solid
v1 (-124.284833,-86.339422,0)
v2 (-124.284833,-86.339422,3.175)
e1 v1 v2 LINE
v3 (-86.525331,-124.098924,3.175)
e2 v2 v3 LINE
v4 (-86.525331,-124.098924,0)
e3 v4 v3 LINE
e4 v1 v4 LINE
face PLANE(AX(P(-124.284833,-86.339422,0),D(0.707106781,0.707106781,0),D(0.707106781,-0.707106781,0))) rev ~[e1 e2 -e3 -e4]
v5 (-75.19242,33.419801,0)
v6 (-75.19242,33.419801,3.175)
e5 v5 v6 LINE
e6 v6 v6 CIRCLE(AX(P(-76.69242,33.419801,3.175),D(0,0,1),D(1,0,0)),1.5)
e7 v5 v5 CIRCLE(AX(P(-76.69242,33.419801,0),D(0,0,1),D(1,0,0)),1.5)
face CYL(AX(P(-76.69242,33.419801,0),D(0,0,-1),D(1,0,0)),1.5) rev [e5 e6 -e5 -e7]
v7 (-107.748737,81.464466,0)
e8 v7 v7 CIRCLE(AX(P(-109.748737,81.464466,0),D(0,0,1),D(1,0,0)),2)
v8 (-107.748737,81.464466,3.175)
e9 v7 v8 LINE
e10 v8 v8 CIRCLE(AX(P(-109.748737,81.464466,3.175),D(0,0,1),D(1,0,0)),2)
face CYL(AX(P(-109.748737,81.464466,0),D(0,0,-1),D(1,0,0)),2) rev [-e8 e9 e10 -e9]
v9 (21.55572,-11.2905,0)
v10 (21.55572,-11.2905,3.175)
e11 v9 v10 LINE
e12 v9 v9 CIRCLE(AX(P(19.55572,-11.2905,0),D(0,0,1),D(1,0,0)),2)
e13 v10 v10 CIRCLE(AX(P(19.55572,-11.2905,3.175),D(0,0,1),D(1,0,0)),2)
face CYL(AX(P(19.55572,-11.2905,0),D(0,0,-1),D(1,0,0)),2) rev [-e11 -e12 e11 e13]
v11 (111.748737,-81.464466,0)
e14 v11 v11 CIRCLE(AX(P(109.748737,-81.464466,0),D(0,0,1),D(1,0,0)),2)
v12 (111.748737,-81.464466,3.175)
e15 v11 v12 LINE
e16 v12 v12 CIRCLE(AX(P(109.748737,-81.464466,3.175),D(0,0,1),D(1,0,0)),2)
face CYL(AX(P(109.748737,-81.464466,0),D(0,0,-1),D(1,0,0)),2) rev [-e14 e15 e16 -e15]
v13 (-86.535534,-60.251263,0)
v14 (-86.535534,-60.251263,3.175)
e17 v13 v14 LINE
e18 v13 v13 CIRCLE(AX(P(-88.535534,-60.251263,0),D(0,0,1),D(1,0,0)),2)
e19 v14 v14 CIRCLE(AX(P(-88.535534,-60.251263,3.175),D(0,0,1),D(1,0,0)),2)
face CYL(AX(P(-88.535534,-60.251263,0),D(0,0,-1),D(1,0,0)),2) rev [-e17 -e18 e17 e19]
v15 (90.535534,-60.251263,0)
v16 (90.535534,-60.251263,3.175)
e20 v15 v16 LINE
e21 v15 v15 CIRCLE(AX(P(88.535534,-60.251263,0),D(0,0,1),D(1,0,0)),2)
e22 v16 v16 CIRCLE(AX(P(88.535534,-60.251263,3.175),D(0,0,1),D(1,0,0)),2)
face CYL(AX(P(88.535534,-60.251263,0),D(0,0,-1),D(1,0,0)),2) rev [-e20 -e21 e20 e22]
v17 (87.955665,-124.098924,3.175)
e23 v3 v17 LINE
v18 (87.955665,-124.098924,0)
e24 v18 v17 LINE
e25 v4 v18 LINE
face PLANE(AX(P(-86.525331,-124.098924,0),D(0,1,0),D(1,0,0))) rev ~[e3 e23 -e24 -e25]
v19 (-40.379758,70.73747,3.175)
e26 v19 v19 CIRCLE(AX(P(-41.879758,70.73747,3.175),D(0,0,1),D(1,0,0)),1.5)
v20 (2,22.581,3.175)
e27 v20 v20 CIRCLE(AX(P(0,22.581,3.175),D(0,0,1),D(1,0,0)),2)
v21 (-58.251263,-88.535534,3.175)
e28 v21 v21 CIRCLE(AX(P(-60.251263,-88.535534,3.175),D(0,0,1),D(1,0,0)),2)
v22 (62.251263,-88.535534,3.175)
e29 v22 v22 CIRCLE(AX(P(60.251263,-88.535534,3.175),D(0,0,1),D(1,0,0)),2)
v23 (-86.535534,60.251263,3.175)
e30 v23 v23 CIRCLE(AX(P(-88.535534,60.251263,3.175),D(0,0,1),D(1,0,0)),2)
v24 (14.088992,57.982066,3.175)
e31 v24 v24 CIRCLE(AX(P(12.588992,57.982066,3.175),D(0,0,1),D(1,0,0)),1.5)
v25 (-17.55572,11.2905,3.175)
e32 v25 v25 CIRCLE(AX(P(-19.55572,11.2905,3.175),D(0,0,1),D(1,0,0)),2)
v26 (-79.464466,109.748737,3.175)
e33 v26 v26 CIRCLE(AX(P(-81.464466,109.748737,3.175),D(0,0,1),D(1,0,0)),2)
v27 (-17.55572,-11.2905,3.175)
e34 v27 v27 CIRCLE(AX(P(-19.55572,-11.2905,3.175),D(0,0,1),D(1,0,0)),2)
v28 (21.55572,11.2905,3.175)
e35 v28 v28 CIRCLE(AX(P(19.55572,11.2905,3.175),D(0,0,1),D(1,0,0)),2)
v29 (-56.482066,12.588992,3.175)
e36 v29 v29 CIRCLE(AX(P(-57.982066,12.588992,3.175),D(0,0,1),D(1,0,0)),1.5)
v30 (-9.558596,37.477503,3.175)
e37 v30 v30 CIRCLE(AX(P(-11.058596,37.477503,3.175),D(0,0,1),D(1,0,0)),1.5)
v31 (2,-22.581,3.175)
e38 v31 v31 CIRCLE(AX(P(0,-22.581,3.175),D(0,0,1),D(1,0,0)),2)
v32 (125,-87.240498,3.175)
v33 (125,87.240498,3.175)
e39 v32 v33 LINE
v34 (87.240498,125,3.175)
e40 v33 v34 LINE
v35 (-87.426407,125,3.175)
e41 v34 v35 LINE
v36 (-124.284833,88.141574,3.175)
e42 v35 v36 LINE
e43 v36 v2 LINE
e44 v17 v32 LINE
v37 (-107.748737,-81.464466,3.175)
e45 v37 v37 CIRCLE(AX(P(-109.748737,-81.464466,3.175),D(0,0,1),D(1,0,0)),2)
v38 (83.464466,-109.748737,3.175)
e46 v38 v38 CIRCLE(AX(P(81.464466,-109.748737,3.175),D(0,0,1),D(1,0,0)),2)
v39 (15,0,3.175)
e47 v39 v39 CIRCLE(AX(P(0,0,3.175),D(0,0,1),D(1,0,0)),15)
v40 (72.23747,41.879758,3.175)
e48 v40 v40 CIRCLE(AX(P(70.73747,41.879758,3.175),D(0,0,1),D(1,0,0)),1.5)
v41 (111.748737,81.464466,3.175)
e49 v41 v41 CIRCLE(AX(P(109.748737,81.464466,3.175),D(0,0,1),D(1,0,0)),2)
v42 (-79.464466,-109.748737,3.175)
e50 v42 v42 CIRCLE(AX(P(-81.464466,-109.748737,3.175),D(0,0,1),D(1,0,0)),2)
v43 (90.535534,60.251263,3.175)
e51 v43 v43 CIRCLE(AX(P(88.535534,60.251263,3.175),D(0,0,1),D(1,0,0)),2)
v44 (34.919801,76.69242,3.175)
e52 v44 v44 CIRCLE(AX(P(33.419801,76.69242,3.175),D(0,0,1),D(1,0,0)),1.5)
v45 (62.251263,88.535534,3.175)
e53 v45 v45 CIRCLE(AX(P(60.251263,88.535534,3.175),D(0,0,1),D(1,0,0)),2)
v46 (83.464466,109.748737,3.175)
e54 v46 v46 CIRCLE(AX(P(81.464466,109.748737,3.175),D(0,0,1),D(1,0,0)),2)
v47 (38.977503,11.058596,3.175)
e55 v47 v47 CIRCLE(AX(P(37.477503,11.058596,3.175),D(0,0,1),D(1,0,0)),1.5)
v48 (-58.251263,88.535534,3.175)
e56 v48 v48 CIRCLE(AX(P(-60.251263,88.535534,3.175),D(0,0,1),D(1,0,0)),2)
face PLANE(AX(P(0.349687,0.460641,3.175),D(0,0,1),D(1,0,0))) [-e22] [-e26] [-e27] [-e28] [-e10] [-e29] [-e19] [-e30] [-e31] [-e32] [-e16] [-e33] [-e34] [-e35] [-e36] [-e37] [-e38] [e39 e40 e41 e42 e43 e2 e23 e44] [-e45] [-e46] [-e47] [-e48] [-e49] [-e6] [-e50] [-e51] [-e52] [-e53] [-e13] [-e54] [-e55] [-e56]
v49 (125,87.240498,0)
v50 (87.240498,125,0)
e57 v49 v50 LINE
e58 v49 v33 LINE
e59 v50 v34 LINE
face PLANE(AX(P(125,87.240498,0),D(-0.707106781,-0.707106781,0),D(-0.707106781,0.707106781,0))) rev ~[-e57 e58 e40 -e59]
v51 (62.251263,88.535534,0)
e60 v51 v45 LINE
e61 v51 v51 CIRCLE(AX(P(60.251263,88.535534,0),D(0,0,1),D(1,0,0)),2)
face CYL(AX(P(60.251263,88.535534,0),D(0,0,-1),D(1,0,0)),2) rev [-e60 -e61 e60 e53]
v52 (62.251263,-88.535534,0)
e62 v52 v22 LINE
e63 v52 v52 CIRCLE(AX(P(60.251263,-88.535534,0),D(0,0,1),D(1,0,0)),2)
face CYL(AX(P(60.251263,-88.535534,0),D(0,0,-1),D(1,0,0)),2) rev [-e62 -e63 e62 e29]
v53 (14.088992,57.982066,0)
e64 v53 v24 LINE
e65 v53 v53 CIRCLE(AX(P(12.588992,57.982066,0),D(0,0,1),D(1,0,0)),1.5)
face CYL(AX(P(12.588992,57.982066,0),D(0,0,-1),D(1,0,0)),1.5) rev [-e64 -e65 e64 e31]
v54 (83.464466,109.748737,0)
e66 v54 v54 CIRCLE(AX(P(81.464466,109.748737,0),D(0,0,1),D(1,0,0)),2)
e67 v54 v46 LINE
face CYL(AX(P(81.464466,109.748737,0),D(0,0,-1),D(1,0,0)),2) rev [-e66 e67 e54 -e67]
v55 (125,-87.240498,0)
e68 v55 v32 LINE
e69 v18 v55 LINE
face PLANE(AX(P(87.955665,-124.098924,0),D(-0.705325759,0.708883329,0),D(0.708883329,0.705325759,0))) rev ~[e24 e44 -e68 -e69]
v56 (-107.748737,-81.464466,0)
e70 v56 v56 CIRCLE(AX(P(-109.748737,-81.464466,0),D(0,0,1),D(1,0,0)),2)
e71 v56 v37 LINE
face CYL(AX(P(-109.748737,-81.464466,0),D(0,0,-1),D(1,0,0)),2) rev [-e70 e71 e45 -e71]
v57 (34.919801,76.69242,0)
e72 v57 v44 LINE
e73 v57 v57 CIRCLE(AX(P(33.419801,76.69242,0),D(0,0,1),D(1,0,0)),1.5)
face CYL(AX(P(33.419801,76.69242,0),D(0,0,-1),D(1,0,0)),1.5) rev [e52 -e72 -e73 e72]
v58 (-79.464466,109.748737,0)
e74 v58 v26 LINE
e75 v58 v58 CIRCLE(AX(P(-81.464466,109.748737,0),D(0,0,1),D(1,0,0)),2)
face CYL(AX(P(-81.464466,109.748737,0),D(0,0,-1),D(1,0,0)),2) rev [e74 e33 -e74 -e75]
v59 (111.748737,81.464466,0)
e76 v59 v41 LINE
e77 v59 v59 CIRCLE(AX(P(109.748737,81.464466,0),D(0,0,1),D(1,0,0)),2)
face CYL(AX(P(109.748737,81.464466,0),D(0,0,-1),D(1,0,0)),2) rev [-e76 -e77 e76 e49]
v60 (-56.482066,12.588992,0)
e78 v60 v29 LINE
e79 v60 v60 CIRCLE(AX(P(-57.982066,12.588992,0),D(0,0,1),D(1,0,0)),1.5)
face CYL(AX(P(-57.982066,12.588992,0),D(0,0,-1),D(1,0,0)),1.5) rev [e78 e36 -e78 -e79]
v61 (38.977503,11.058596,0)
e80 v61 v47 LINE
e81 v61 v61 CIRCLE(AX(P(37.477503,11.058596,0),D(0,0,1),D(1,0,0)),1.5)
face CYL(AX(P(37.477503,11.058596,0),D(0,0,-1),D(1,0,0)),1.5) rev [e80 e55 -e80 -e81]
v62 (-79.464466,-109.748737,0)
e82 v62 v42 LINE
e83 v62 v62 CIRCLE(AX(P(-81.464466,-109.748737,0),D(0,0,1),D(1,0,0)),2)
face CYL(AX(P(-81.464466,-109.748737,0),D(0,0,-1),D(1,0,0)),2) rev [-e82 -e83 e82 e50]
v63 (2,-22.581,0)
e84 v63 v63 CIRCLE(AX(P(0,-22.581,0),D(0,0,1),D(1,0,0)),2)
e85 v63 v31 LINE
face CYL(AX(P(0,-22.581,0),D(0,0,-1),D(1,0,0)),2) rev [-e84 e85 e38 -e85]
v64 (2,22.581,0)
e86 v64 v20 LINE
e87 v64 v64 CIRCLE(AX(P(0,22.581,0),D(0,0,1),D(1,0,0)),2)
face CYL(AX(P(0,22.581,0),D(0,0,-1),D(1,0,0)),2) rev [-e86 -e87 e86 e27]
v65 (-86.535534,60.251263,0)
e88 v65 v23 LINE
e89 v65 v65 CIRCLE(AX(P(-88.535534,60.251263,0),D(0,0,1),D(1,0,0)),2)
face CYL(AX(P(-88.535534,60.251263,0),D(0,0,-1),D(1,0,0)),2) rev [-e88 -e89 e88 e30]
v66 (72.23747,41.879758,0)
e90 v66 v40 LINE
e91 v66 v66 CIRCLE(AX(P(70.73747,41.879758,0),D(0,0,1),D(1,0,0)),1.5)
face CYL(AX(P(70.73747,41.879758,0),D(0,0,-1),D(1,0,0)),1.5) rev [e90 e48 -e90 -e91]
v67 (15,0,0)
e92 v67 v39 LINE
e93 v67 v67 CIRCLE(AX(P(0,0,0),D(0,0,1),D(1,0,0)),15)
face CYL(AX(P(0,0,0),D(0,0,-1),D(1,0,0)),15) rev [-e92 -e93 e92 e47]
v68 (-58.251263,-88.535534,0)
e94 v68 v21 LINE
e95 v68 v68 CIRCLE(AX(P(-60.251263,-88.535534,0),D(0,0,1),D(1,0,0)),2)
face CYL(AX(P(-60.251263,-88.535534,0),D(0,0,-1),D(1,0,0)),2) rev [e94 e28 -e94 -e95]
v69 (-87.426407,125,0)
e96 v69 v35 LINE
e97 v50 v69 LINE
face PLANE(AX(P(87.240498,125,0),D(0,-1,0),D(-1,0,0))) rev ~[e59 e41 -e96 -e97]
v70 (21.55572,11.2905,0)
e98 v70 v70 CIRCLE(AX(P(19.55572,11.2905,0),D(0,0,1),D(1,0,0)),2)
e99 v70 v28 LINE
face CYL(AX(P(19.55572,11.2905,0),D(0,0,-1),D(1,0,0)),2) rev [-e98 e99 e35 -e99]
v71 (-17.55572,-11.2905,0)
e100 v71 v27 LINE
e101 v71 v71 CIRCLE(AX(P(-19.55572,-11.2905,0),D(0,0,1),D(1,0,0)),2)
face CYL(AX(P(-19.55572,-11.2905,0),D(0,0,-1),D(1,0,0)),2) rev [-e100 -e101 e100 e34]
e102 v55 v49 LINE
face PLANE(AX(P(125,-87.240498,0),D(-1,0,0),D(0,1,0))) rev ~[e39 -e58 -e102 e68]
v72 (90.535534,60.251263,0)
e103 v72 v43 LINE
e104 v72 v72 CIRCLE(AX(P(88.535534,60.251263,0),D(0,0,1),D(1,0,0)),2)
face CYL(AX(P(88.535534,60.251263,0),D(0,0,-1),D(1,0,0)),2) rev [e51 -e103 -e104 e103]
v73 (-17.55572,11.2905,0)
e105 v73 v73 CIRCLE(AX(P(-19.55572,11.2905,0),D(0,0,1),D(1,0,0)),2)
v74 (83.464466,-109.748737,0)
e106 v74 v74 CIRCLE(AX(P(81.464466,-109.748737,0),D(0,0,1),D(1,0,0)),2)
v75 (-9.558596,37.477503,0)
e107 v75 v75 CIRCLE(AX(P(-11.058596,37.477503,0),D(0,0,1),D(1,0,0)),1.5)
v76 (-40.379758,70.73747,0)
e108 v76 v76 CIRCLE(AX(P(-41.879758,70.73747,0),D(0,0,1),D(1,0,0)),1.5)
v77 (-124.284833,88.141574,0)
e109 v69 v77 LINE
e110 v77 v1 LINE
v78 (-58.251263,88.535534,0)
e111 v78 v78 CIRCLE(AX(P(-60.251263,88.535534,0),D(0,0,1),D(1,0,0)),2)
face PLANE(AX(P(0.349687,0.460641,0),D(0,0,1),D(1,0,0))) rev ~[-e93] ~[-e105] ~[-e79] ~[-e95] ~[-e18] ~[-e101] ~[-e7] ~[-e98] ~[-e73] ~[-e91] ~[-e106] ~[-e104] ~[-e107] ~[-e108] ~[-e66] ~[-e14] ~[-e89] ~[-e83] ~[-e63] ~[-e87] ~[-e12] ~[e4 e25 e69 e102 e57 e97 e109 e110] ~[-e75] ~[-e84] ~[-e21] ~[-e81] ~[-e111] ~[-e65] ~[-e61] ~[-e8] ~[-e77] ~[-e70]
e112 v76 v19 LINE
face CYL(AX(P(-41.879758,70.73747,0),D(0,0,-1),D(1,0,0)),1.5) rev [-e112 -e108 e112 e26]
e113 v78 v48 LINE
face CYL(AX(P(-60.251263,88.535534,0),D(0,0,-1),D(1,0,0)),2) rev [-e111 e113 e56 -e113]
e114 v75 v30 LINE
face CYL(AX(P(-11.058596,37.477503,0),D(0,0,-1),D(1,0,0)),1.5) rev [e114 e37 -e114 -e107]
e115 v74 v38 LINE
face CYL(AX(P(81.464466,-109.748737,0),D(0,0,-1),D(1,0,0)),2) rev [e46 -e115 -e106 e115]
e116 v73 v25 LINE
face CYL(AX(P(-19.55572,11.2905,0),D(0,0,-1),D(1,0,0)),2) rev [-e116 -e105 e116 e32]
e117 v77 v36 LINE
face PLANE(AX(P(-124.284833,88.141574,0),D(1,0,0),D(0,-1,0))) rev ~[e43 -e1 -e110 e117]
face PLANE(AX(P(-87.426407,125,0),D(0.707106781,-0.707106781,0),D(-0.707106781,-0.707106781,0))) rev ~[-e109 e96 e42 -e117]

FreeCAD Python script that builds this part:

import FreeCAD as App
import Part
import Sketcher

V = App.Vector
Q = App.Units.Quantity

doc = App.newDocument("Part")
body = doc.addObject("PartDesign::Body", "Body")

# Sketch on XY plane
sketch1 = doc.addObject("Sketcher::SketchObject", "Sketch")
body.addObject(sketch1)
sketch1.AttachmentSupport = (doc.XY_Plane, [""])
sketch1.MapMode = "FlatFace"
sketch1.addGeometry([
    Part.LineSegment(V(87.2, 125, 0), V(-87.4, 125, 0)),  # 0
    Part.LineSegment(V(-87.4, 125, 0), V(-124.3, 88.1, 0)),  # 1
    Part.LineSegment(V(-124.3, 88.1, 0), V(-124.3, -86.3, 0)),  # 2
    Part.LineSegment(V(-124.3, -86.3, 0), V(-86.5, -124.1, 0)),  # 3
    Part.LineSegment(V(-86.5, -124.1, 0), V(88, -124.1, 0)),  # 4
    Part.LineSegment(V(88, -124.1, 0), V(125, -87.2, 0)),  # 5
    Part.LineSegment(V(125, -87.2, 0), V(125, 87.2, 0)),  # 6
    Part.LineSegment(V(125, 87.2, 0), V(87.2, 125, 0)),  # 7
    Part.Circle(V(-81.5, -109.7, 0), V(0, 0, 1), 2),  # 8
    Part.Circle(V(-60.3, -88.5, 0), V(0, 0, 1), 2),  # 9
    Part.Circle(V(-109.7, -81.5, 0), V(0, 0, 1), 2),  # 10
    Part.Circle(V(-88.5, -60.3, 0), V(0, 0, 1), 2),  # 11
    Part.Circle(V(-19.6, -11.3, 0), V(0, 0, 1), 2),  # 12
    Part.Circle(V(81.5, -109.7, 0), V(0, 0, 1), 2),  # 13
    Part.Circle(V(60.3, -88.5, 0), V(0, 0, 1), 2),  # 14
    Part.Circle(V(109.7, -81.5, 0), V(0, 0, 1), 2),  # 15
    Part.Circle(V(88.5, -60.3, 0), V(0, 0, 1), 2),  # 16
    Part.Circle(V(0, -22.6, 0), V(0, 0, 1), 2),  # 17
    Part.Circle(V(19.6, -11.3, 0), V(0, 0, 1), 2),  # 18
    Part.Circle(V(-58, 12.6, 0), V(0, 0, 1), 1.5),  # 19
    Part.Circle(V(-76.7, 33.4, 0), V(0, 0, 1), 1.5),  # 20
    Part.Circle(V(-19.6, 11.3, 0), V(0, 0, 1), 2),  # 21
    Part.Circle(V(-11.1, 37.5, 0), V(0, 0, 1), 1.5),  # 22
    Part.Circle(V(-88.5, 60.3, 0), V(0, 0, 1), 2),  # 23
    Part.Circle(V(-109.7, 81.5, 0), V(0, 0, 1), 2),  # 24
    Part.Circle(V(-60.3, 88.5, 0), V(0, 0, 1), 2),  # 25
    Part.Circle(V(-81.5, 109.7, 0), V(0, 0, 1), 2),  # 26
    Part.Circle(V(-41.9, 70.7, 0), V(0, 0, 1), 1.5),  # 27
    Part.Circle(V(0, 0, 0), V(0, 0, 1), 15),  # 28
    Part.Circle(V(19.6, 11.3, 0), V(0, 0, 1), 2),  # 29
    Part.Circle(V(0, 22.6, 0), V(0, 0, 1), 2),  # 30
    Part.Circle(V(37.5, 11.1, 0), V(0, 0, 1), 1.5),  # 31
    Part.Circle(V(70.7, 41.9, 0), V(0, 0, 1), 1.5),  # 32
    Part.Circle(V(12.6, 58, 0), V(0, 0, 1), 1.5),  # 33
    Part.Circle(V(33.4, 76.7, 0), V(0, 0, 1), 1.5),  # 34
    Part.Circle(V(88.5, 60.3, 0), V(0, 0, 1), 2),  # 35
    Part.Circle(V(109.7, 81.5, 0), V(0, 0, 1), 2),  # 36
    Part.Circle(V(60.3, 88.5, 0), V(0, 0, 1), 2),  # 37
    Part.Circle(V(81.5, 109.7, 0), V(0, 0, 1), 2),  # 38
], False)
sketch1.addConstraint([
    Sketcher.Constraint("Coincident", 0, 2, 1, 1),
    Sketcher.Constraint("Coincident", 1, 2, 2, 1),
    Sketcher.Constraint("Coincident", 2, 2, 3, 1),
    Sketcher.Constraint("Coincident", 3, 2, 4, 1),
    Sketcher.Constraint("Coincident", 4, 2, 5, 1),
    Sketcher.Constraint("Coincident", 5, 2, 6, 1),
    Sketcher.Constraint("Coincident", 6, 2, 7, 1),
    Sketcher.Constraint("Coincident", 7, 2, 0, 1),
    Sketcher.Constraint("Horizontal", 0),
    Sketcher.Constraint("Vertical", 2),
    Sketcher.Constraint("Horizontal", 4),
    Sketcher.Constraint("Vertical", 6),
    Sketcher.Constraint("Coincident", 28, 3, -1, 1),
    Sketcher.Constraint("Equal", 8, 9),
    Sketcher.Constraint("Equal", 9, 10),
    Sketcher.Constraint("Equal", 10, 11),
    Sketcher.Constraint("Equal", 11, 12),
    Sketcher.Constraint("Equal", 12, 13),
    Sketcher.Constraint("Equal", 13, 14),
    Sketcher.Constraint("Equal", 14, 15),
    Sketcher.Constraint("Equal", 15, 16),
    Sketcher.Constraint("Equal", 16, 17),
    Sketcher.Constraint("Equal", 17, 18),
    Sketcher.Constraint("Equal", 19, 20),
    Sketcher.Constraint("Equal", 18, 21),
    Sketcher.Constraint("Equal", 20, 22),
    Sketcher.Constraint("Equal", 21, 23),
    Sketcher.Constraint("Equal", 23, 24),
    Sketcher.Constraint("Equal", 24, 25),
    Sketcher.Constraint("Equal", 25, 26),
    Sketcher.Constraint("Equal", 22, 27),
    Sketcher.Constraint("Equal", 26, 29),
    Sketcher.Constraint("Equal", 29, 30),
    Sketcher.Constraint("Equal", 27, 31),
    Sketcher.Constraint("Equal", 31, 32),
    Sketcher.Constraint("Equal", 32, 33),
    Sketcher.Constraint("Equal", 33, 34),
    Sketcher.Constraint("Equal", 30, 35),
    Sketcher.Constraint("Equal", 35, 36),
    Sketcher.Constraint("Equal", 36, 37),
    Sketcher.Constraint("Equal", 37, 38),
    Sketcher.Constraint("Symmetric", 18, 3, 21, 3, -1, 1),
    Sketcher.Constraint("Symmetric", 16, 3, 23, 3, -1, 1),
    Sketcher.Constraint("Symmetric", 15, 3, 24, 3, -1, 1),
    Sketcher.Constraint("Symmetric", 14, 3, 25, 3, -1, 1),
    Sketcher.Constraint("Symmetric", 13, 3, 26, 3, -1, 1),
    Sketcher.Constraint("Symmetric", 12, 3, 29, 3, -1, 1),
    Sketcher.Constraint("Symmetric", 17, 3, 30, 3, -1, 1),
    Sketcher.Constraint("Symmetric", 11, 3, 35, 3, -1, 1),
    Sketcher.Constraint("Symmetric", 10, 3, 36, 3, -1, 1),
    Sketcher.Constraint("Symmetric", 9, 3, 37, 3, -1, 1),
    Sketcher.Constraint("Symmetric", 8, 3, 38, 3, -1, 1),
    Sketcher.Constraint("Symmetric", 8, 3, 13, 3, -2),
    Sketcher.Constraint("Symmetric", 9, 3, 14, 3, -2),
    Sketcher.Constraint("Symmetric", 10, 3, 15, 3, -2),
    Sketcher.Constraint("Symmetric", 11, 3, 16, 3, -2),
    Sketcher.Constraint("Symmetric", 12, 3, 18, 3, -2),
    Sketcher.Constraint("PointOnObject", 17, 3, -2),
    Sketcher.Constraint("Perpendicular", 1, 3),
    Sketcher.Constraint("Parallel", 3, 7),
    Sketcher.Constraint("Equal", 4, 2),
    Sketcher.Constraint("Equal", 2, 6),
    Sketcher.Constraint("Equal", 3, 7),
    Sketcher.Constraint("Diameter", 8, Q("4 mm")),
    Sketcher.Constraint("Diameter", 19, Q("3 mm")),
    Sketcher.Constraint("Diameter", 28, Q("30 mm")),
    Sketcher.Constraint("Angle", 1, Q("-135 deg")),
    Sketcher.Constraint("DistanceY", -1, 1, 0, 2, Q("125 mm")),
    Sketcher.Constraint("DistanceX", -1, 1, 5, 2, Q("125 mm")),
    Sketcher.Constraint("DistanceX", 11, 3, 13, 3, Q("170 mm")),
    Sketcher.Constraint("DistanceX", 9, 3, 15, 3, Q("170 mm")),
    Sketcher.Constraint("Distance", 3, Q("53.4 mm")),
    Sketcher.Constraint("DistanceY", 17, 3, -1, 1, Q("22.581 mm")),
    Sketcher.Constraint("DistanceY", 12, 3, 21, 3, Q("22.581 mm")),
    Sketcher.Constraint("DistanceY", -1, 1, 20, 3, Q("33.419801 mm")),
    Sketcher.Constraint("DistanceX", -1, 1, 34, 3, Q("33.419801 mm")),
    Sketcher.Constraint("DistanceY", 5, 2, -1, 1, Q("87.240498 mm")),
    Sketcher.Constraint("DistanceX", 20, 3, 12, 3, Q("57.1367 mm")),
    Sketcher.Constraint("DistanceX", 26, 3, 19, 3, Q("23.4824 mm")),
    Sketcher.Constraint("DistanceX", 34, 3, 31, 3, Q("4.057702 mm")),
    Sketcher.Constraint("DistanceY", 33, 3, 36, 3, Q("23.4824 mm")),
    Sketcher.Constraint("DistanceX", 1, 2, 23, 3, Q("35.749299 mm")),
    Sketcher.Constraint("DistanceX", 14, 3, 4, 2, Q("27.704402 mm")),
    Sketcher.Constraint("Distance", 5, Q("52.257309 mm")),
    Sketcher.Constraint("DistanceX", 0, 2, 0, 1, Q("174.666905 mm")),
    Sketcher.Constraint("DistanceX", 12, 3, -1, 1, Q("19.55572 mm")),
    Sketcher.Constraint("DistanceY", -1, 1, 19, 3, Q("12.588992 mm")),
    Sketcher.Constraint("DistanceX", 27, 3, -1, 1, Q("41.879758 mm")),
    Sketcher.Constraint("DistanceY", -1, 1, 27, 3, Q("70.73747 mm")),
    Sketcher.Constraint("DistanceX", -1, 1, 32, 3, Q("70.73747 mm")),
    Sketcher.Constraint("DistanceY", -1, 1, 32, 3, Q("41.879758 mm")),
    Sketcher.Constraint("DistanceX", -1, 1, 33, 3, Q("12.588992 mm")),
    Sketcher.Constraint("DistanceY", -1, 1, 34, 3, Q("76.69242 mm")),
    Sketcher.Constraint("DistanceY", 8, 3, 10, 3, Q("28.284271 mm")),
    Sketcher.Constraint("DistanceY", 9, 3, 11, 3, Q("28.284271 mm")),
    Sketcher.Constraint("DistanceX", 19, 3, 22, 3, Q("46.92347 mm")),
    Sketcher.Constraint("DistanceY", 19, 3, 22, 3, Q("24.888511 mm")),
    Sketcher.Constraint("DistanceY", 19, 3, 23, 3, Q("47.662271 mm")),
    Sketcher.Constraint("DistanceY", 31, 3, 33, 3, Q("46.92347 mm")),
    Sketcher.Constraint("DistanceY", 32, 3, 38, 3, Q("67.868979 mm")),
])
pad1 = doc.addObject("PartDesign::Pad", "Pad")
body.addObject(pad1)
pad1.Profile = sketch1
pad1.Length = 3.175

doc.recompute()
